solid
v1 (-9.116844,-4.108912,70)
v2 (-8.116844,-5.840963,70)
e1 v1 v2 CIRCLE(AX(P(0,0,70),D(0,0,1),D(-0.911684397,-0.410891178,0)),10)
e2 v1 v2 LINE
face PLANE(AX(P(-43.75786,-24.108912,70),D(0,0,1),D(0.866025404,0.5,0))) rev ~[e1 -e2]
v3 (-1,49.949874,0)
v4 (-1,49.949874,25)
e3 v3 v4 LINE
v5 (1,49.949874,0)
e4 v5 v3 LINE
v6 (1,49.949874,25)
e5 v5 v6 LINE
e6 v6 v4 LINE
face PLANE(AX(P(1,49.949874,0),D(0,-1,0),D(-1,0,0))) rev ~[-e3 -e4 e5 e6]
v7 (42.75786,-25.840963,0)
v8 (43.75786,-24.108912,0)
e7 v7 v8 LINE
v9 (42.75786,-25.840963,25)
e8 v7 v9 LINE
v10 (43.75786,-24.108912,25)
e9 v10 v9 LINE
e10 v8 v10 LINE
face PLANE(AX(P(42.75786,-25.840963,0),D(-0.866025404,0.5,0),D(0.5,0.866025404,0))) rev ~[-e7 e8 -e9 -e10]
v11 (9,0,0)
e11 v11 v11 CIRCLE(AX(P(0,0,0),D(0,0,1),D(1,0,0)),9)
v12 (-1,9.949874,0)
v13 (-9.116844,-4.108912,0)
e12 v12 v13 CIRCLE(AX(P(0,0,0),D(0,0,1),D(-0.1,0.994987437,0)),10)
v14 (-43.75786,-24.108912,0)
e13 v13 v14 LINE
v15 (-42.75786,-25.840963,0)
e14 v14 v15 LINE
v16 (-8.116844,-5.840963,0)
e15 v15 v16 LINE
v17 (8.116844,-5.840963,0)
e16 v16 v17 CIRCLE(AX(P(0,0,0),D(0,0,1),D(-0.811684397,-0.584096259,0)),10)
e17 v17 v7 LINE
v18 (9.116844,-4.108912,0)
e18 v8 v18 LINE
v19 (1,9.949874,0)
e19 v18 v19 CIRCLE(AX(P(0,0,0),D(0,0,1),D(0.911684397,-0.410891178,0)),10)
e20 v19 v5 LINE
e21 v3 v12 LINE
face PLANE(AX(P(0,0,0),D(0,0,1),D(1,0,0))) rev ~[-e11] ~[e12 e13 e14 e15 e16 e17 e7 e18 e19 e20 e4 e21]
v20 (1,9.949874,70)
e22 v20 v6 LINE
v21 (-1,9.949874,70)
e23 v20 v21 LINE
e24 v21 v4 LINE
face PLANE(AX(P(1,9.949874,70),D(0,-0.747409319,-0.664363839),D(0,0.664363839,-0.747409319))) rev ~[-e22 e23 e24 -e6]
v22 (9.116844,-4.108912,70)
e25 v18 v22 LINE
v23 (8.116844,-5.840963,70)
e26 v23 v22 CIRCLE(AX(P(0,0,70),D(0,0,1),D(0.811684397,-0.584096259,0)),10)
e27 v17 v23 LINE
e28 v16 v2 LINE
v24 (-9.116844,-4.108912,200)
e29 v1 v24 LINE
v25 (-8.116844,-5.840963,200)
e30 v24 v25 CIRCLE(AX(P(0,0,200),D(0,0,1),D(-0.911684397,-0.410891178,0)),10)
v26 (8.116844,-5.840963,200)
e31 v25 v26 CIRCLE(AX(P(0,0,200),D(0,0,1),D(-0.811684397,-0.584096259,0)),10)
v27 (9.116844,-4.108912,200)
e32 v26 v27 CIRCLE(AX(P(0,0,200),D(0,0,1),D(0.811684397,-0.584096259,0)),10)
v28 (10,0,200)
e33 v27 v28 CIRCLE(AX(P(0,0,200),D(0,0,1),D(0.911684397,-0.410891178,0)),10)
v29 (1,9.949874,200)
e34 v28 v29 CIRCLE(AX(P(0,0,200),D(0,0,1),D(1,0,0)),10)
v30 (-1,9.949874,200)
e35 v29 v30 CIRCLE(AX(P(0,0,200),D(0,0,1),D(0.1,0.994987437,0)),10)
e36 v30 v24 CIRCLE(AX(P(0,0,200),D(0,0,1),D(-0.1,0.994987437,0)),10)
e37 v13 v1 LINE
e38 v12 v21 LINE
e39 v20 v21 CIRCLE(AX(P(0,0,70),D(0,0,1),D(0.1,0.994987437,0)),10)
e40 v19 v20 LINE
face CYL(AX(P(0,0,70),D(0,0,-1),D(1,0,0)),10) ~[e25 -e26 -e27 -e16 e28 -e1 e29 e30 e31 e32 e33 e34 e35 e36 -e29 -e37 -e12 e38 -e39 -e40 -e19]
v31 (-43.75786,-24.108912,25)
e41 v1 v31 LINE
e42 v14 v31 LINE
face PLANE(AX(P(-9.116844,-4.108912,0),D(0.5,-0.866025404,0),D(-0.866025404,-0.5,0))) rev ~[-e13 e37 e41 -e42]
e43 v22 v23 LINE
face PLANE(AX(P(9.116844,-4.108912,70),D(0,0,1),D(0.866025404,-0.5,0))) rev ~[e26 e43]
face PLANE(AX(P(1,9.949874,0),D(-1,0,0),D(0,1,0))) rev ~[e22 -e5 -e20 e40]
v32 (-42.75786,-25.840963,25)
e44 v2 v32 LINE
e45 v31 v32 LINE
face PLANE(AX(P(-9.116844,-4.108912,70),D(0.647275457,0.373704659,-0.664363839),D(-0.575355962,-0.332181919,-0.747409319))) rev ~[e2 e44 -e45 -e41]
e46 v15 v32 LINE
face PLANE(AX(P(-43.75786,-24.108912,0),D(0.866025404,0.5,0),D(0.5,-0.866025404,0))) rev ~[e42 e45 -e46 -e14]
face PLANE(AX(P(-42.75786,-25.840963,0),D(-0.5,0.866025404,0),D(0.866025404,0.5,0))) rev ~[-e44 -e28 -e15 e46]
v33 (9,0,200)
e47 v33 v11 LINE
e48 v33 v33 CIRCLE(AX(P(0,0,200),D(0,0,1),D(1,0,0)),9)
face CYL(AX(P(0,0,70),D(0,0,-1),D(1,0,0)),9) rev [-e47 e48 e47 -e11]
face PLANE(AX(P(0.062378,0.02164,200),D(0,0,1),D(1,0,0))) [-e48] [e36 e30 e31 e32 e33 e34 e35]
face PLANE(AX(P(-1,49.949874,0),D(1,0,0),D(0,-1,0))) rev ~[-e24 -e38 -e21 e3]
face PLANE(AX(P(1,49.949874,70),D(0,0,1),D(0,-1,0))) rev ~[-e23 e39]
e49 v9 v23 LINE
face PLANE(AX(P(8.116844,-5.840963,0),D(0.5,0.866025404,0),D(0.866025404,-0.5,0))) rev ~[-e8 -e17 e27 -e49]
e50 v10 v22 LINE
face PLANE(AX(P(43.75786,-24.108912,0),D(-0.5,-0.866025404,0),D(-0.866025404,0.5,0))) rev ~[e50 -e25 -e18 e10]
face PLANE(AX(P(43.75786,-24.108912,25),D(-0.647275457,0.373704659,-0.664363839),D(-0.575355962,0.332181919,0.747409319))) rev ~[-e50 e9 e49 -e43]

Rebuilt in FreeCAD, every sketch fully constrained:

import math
import FreeCAD as App
import Part
import Sketcher
from FreeCAD import Vector
Q = App.Units.Quantity

doc = App.newDocument("Part")
params = doc.addObject("Spreadsheet::Sheet", "Params")
for row, (alias, value) in enumerate([
    ("sketch1_diameter", "18 mm"),
    ("sketch1_radius", "10 mm"),
    ("sketch1_width", "2 mm"),
    ("sketch1_height", "40 mm"),
    ("sketch1_length", "40 mm"),
    ("pad1_length", "70 mm"),
    ("sketch2_diameter", "18 mm"),
    ("sketch2_radius", "10 mm"),
    ("pad2_length", "130 mm"),
    ("sketch3_width", "40 mm"),
    ("sketch3_height", "45 mm"),
    ("sketch4_width", "40 mm"),
    ("sketch4_height", "45 mm"),
    ("pocket2_length", "25 mm"),
    ("sketch5_width", "40 mm"),
    ("sketch5_height", "45 mm"),
    ("pocket3_length", "25 mm"),
], start=1):
    params.set(f"A{row}", alias)
    params.set(f"B{row}", "=" + value)
    params.setAlias(f"B{row}", alias)

body = doc.addObject("PartDesign::Body", "Body")

# Sketch on XY plane
sketch1 = doc.addObject("Sketcher::SketchObject", "Sketch")
body.addObject(sketch1)
sketch1.AttachmentSupport = (doc.XY_Plane, [""])
sketch1.MapMode = "FlatFace"
sketch1.addGeometry([
    Part.LineSegment(Vector(-1, 49.9, 0), Vector(-1, 9.9, 0)),  # 0
    Part.ArcOfCircle(Part.Circle(Vector(0, 0, 0), Vector(0, 0, 1), 10), math.radians(96), math.radians(204)),  # 1
    Part.LineSegment(Vector(-9.1, -4.1, 0), Vector(-43.8, -24.1, 0)),  # 2
    Part.LineSegment(Vector(-43.8, -24.1, 0), Vector(-42.8, -25.8, 0)),  # 3
    Part.LineSegment(Vector(-42.8, -25.8, 0), Vector(-8.1, -5.8, 0)),  # 4
    Part.ArcOfCircle(Part.Circle(Vector(0, 0, 0), Vector(0, 0, 1), 10), math.radians(-144), math.radians(-36)),  # 5
    Part.LineSegment(Vector(8.1, -5.8, 0), Vector(42.8, -25.8, 0)),  # 6
    Part.LineSegment(Vector(42.8, -25.8, 0), Vector(43.8, -24.1, 0)),  # 7
    Part.LineSegment(Vector(43.8, -24.1, 0), Vector(9.1, -4.1, 0)),  # 8
    Part.ArcOfCircle(Part.Circle(Vector(0, 0, 0), Vector(0, 0, 1), 10), math.radians(-24), math.radians(84)),  # 9
    Part.LineSegment(Vector(1, 9.9, 0), Vector(1, 49.9, 0)),  # 10
    Part.LineSegment(Vector(1, 49.9, 0), Vector(-1, 49.9, 0)),  # 11
    Part.Circle(Vector(0, 0, 0), Vector(0, 0, 1), 9),  # 12
], False)
sketch1.addConstraint([
    Sketcher.Constraint("Coincident", 0, 2, 1, 1),
    Sketcher.Constraint("Coincident", 1, 2, 2, 1),
    Sketcher.Constraint("Coincident", 2, 2, 3, 1),
    Sketcher.Constraint("Coincident", 3, 2, 4, 1),
    Sketcher.Constraint("Coincident", 4, 2, 5, 1),
    Sketcher.Constraint("Coincident", 5, 2, 6, 1),
    Sketcher.Constraint("Coincident", 6, 2, 7, 1),
    Sketcher.Constraint("Coincident", 7, 2, 8, 1),
    Sketcher.Constraint("Coincident", 8, 2, 9, 1),
    Sketcher.Constraint("Coincident", 9, 2, 10, 1),
    Sketcher.Constraint("Coincident", 10, 2, 11, 1),
    Sketcher.Constraint("Coincident", 11, 2, 0, 1),
    Sketcher.Constraint("Vertical", 0),
    Sketcher.Constraint("Vertical", 10),
    Sketcher.Constraint("Horizontal", 11),
    Sketcher.Constraint("Coincident", 1, 3, -1, 1),
    Sketcher.Constraint("Coincident", 5, 3, -1, 1),
    Sketcher.Constraint("Coincident", 9, 3, -1, 1),
    Sketcher.Constraint("Coincident", 12, 3, -1, 1),
    Sketcher.Constraint("Equal", 1, 5),
    Sketcher.Constraint("Equal", 5, 9),
    Sketcher.Constraint("Symmetric", 3, 2, 6, 2, -2),
    Sketcher.Constraint("Symmetric", 2, 2, 7, 2, -2),
    Sketcher.Constraint("Perpendicular", 2, 3),
    Sketcher.Constraint("Perpendicular", 3, 4),
    Sketcher.Constraint("Perpendicular", 6, 7),
    Sketcher.Constraint("Perpendicular", 7, 8),
    Sketcher.Constraint("Horizontal", 0, 2, 9, 2),
    Sketcher.Constraint("Equal", 2, 4),
    Sketcher.Constraint("Diameter", 12, 18.0),
    Sketcher.Constraint("Radius", 1, 10.0),
    Sketcher.Constraint("DistanceX", 11, 2, 11, 1, 2.0),
    Sketcher.Constraint("DistanceY", 0, 2, 0, 1, 40.0),
    Sketcher.Constraint("Angle", 2, Q("-150 deg")),
    Sketcher.Constraint("Distance", 2, 40.0),
    Sketcher.Constraint("Distance", 3, 2.0),
])
sketch1.setExpression("Constraints[29]", "Params.sketch1_diameter")
sketch1.setExpression("Constraints[30]", "Params.sketch1_radius")
sketch1.setExpression("Constraints[31]", "Params.sketch1_width")
sketch1.setExpression("Constraints[32]", "Params.sketch1_height")
sketch1.setExpression("Constraints[34]", "Params.sketch1_length")
pad1 = doc.addObject("PartDesign::Pad", "Pad")
body.addObject(pad1)
pad1.Profile = sketch1
pad1.setExpression("Length", "Params.pad1_length")

# Sketch on XY plane
sketch2 = doc.addObject("Sketcher::SketchObject", "Sketch001")
body.addObject(sketch2)
sketch2.AttachmentSupport = (doc.XY_Plane, [""])
sketch2.MapMode = "FlatFace"
sketch2.AttachmentOffset = App.Placement(Vector(0, 0, 70), App.Rotation())
sketch2.addGeometry([
    Part.ArcOfCircle(Part.Circle(Vector(0, 0, 0), Vector(0, 0, 1), 10), math.radians(-24), math.radians(0)),  # 0
    Part.ArcOfCircle(Part.Circle(Vector(0, 0, 0), Vector(0, 0, 1), 10), math.radians(0), math.radians(84)),  # 1
    Part.ArcOfCircle(Part.Circle(Vector(0, 0, 0), Vector(0, 0, 1), 10), math.radians(84.26), math.radians(95.74)),  # 2
    Part.ArcOfCircle(Part.Circle(Vector(0, 0, 0), Vector(0, 0, 1), 10), math.radians(96), math.radians(204)),  # 3
    Part.ArcOfCircle(Part.Circle(Vector(0, 0, 0), Vector(0, 0, 1), 10), math.radians(-155.74), math.radians(-144.26)),  # 4
    Part.ArcOfCircle(Part.Circle(Vector(0, 0, 0), Vector(0, 0, 1), 10), math.radians(-144), math.radians(-36)),  # 5
    Part.ArcOfCircle(Part.Circle(Vector(0, 0, 0), Vector(0, 0, 1), 10), math.radians(-35.74), math.radians(-24.26)),  # 6
    Part.Circle(Vector(0, 0, 0), Vector(0, 0, 1), 9),  # 7
], False)
sketch2.addConstraint([
    Sketcher.Constraint("Tangent", 0, 2, 1, 1),
    Sketcher.Constraint("Tangent", 1, 2, 2, 1),
    Sketcher.Constraint("Tangent", 2, 2, 3, 1),
    Sketcher.Constraint("Tangent", 3, 2, 4, 1),
    Sketcher.Constraint("Tangent", 4, 2, 5, 1),
    Sketcher.Constraint("Tangent", 5, 2, 6, 1),
    Sketcher.Constraint("Tangent", 6, 2, 0, 1),
    Sketcher.Constraint("Coincident", 0, 3, -1, 1),
    Sketcher.Constraint("Coincident", 2, 3, -1, 1),
    Sketcher.Constraint("Coincident", 4, 3, -1, 1),
    Sketcher.Constraint("Coincident", 7, 3, -1, 1),
    Sketcher.Constraint("PointOnObject", 0, 2, -1),
    Sketcher.Constraint("Horizontal", 1, 2, 2, 2),
    Sketcher.Constraint("Horizontal", 4, 2, 5, 2),
    Sketcher.Constraint("Horizontal", 3, 2, 6, 2),
    Sketcher.Constraint("Diameter", 7, 18.0),
    Sketcher.Constraint("Radius", 0, 10.0),
    Sketcher.Constraint("DistanceX", -1, 1, 1, 2, 1.0),
    Sketcher.Constraint("DistanceX", 3, 2, 4, 2, 1.0),
    Sketcher.Constraint("DistanceY", 3, 2, -1, 1, 4.108912),
])
sketch2.setExpression("Constraints[15]", "Params.sketch2_diameter")
sketch2.setExpression("Constraints[16]", "Params.sketch2_radius")
pad2 = doc.addObject("PartDesign::Pad", "Pad001")
body.addObject(pad2)
pad2.Profile = sketch2
pad2.setExpression("Length", "Params.pad2_length")

# Sketch on YZ plane
sketch3 = doc.addObject("Sketcher::SketchObject", "Sketch002")
body.addObject(sketch3)
sketch3.AttachmentSupport = (doc.YZ_Plane, [""])
sketch3.MapMode = "FlatFace"
sketch3.AttachmentOffset = App.Placement(Vector(0, 0, 1), App.Rotation())
sketch3.addGeometry([
    Part.LineSegment(Vector(50, 70, 0), Vector(10, 70, 0)),
    Part.LineSegment(Vector(10, 70, 0), Vector(50, 25, 0)),
    Part.LineSegment(Vector(50, 25, 0), Vector(50, 70, 0)),
], False)
sketch3.addConstraint([
    Sketcher.Constraint("Coincident", 0, 2, 1, 1),
    Sketcher.Constraint("Coincident", 1, 2, 2, 1),
    Sketcher.Constraint("Coincident", 2, 2, 0, 1),
    Sketcher.Constraint("Horizontal", 0),
    Sketcher.Constraint("Vertical", 2),
    Sketcher.Constraint("DistanceX", 0, 2, 0, 1, 40.0),
    Sketcher.Constraint("DistanceY", 2, 1, 2, 2, 45.0),
    Sketcher.Constraint("DistanceY", -1, 1, 0, 2, 70.0),
    Sketcher.Constraint("DistanceX", -1, 1, 0, 2, 9.949874),
])
sketch3.setExpression("Constraints[5]", "Params.sketch3_width")
sketch3.setExpression("Constraints[6]", "Params.sketch3_height")
pocket1 = doc.addObject("PartDesign::Pocket", "Pocket")
body.addObject(pocket1)
pocket1.Profile = sketch3
pocket1.Type = "ThroughAll"

# Sketch on an angled plane
sketch4 = doc.addObject("Sketcher::SketchObject", "Sketch003")
body.addObject(sketch4)
sketch4.Placement = App.Placement(Vector(0.5, 0.866025, 0), App.Rotation(Vector(-0.866025404, 0.5, 0), Vector(0, 0, 1), Vector(0.5, 0.866025404, 0), "ZXY"))
sketch4.addGeometry([
    Part.LineSegment(Vector(-50, 25, 0), Vector(-10, 70, 0)),
    Part.LineSegment(Vector(-10, 70, 0), Vector(-50, 70, 0)),
    Part.LineSegment(Vector(-50, 70, 0), Vector(-50, 25, 0)),
], False)
sketch4.addConstraint([
    Sketcher.Constraint("Coincident", 0, 2, 1, 1),
    Sketcher.Constraint("Coincident", 1, 2, 2, 1),
    Sketcher.Constraint("Coincident", 2, 2, 0, 1),
    Sketcher.Constraint("Horizontal", 1),
    Sketcher.Constraint("Vertical", 2),
    Sketcher.Constraint("DistanceX", 1, 2, 1, 1, 40.0),
    Sketcher.Constraint("DistanceY", 2, 2, 2, 1, 45.0),
    Sketcher.Constraint("DistanceY", -1, 1, 0, 2, 70.0),
    Sketcher.Constraint("DistanceX", 0, 2, -1, 1, 9.949874),
])
sketch4.setExpression("Constraints[5]", "Params.sketch4_width")
sketch4.setExpression("Constraints[6]", "Params.sketch4_height")
pocket2 = doc.addObject("PartDesign::Pocket", "Pocket001")
body.addObject(pocket2)
pocket2.Profile = sketch4
pocket2.setExpression("Length", "Params.pocket2_length")

# Sketch on an angled plane
sketch5 = doc.addObject("Sketcher::SketchObject", "Sketch004")
body.addObject(sketch5)
sketch5.Placement = App.Placement(Vector(-0.5, 0.866025, 0), App.Rotation(Vector(-0.866025404, -0.5, 0), Vector(0, 0, 1), Vector(-0.5, 0.866025404, 0), "ZXY"))
sketch5.addGeometry([
    Part.LineSegment(Vector(50, 70, 0), Vector(10, 70, 0)),
    Part.LineSegment(Vector(10, 70, 0), Vector(50, 25, 0)),
    Part.LineSegment(Vector(50, 25, 0), Vector(50, 70, 0)),
], False)
sketch5.addConstraint([
    Sketcher.Constraint("Coincident", 0, 2, 1, 1),
    Sketcher.Constraint("Coincident", 1, 2, 2, 1),
    Sketcher.Constraint("Coincident", 2, 2, 0, 1),
    Sketcher.Constraint("Horizontal", 0),
    Sketcher.Constraint("Vertical", 2),
    Sketcher.Constraint("DistanceX", 0, 2, 0, 1, 40.0),
    Sketcher.Constraint("DistanceY", 2, 1, 2, 2, 45.0),
    Sketcher.Constraint("DistanceY", -1, 1, 0, 2, 70.0),
    Sketcher.Constraint("DistanceX", -1, 1, 0, 2, 9.949874),
])
sketch5.setExpression("Constraints[5]", "Params.sketch5_width")
sketch5.setExpression("Constraints[6]", "Params.sketch5_height")
pocket3 = doc.addObject("PartDesign::Pocket", "Pocket002")
body.addObject(pocket3)
pocket3.Profile = sketch5
pocket3.setExpression("Length", "Params.pocket3_length")

doc.recompute()
